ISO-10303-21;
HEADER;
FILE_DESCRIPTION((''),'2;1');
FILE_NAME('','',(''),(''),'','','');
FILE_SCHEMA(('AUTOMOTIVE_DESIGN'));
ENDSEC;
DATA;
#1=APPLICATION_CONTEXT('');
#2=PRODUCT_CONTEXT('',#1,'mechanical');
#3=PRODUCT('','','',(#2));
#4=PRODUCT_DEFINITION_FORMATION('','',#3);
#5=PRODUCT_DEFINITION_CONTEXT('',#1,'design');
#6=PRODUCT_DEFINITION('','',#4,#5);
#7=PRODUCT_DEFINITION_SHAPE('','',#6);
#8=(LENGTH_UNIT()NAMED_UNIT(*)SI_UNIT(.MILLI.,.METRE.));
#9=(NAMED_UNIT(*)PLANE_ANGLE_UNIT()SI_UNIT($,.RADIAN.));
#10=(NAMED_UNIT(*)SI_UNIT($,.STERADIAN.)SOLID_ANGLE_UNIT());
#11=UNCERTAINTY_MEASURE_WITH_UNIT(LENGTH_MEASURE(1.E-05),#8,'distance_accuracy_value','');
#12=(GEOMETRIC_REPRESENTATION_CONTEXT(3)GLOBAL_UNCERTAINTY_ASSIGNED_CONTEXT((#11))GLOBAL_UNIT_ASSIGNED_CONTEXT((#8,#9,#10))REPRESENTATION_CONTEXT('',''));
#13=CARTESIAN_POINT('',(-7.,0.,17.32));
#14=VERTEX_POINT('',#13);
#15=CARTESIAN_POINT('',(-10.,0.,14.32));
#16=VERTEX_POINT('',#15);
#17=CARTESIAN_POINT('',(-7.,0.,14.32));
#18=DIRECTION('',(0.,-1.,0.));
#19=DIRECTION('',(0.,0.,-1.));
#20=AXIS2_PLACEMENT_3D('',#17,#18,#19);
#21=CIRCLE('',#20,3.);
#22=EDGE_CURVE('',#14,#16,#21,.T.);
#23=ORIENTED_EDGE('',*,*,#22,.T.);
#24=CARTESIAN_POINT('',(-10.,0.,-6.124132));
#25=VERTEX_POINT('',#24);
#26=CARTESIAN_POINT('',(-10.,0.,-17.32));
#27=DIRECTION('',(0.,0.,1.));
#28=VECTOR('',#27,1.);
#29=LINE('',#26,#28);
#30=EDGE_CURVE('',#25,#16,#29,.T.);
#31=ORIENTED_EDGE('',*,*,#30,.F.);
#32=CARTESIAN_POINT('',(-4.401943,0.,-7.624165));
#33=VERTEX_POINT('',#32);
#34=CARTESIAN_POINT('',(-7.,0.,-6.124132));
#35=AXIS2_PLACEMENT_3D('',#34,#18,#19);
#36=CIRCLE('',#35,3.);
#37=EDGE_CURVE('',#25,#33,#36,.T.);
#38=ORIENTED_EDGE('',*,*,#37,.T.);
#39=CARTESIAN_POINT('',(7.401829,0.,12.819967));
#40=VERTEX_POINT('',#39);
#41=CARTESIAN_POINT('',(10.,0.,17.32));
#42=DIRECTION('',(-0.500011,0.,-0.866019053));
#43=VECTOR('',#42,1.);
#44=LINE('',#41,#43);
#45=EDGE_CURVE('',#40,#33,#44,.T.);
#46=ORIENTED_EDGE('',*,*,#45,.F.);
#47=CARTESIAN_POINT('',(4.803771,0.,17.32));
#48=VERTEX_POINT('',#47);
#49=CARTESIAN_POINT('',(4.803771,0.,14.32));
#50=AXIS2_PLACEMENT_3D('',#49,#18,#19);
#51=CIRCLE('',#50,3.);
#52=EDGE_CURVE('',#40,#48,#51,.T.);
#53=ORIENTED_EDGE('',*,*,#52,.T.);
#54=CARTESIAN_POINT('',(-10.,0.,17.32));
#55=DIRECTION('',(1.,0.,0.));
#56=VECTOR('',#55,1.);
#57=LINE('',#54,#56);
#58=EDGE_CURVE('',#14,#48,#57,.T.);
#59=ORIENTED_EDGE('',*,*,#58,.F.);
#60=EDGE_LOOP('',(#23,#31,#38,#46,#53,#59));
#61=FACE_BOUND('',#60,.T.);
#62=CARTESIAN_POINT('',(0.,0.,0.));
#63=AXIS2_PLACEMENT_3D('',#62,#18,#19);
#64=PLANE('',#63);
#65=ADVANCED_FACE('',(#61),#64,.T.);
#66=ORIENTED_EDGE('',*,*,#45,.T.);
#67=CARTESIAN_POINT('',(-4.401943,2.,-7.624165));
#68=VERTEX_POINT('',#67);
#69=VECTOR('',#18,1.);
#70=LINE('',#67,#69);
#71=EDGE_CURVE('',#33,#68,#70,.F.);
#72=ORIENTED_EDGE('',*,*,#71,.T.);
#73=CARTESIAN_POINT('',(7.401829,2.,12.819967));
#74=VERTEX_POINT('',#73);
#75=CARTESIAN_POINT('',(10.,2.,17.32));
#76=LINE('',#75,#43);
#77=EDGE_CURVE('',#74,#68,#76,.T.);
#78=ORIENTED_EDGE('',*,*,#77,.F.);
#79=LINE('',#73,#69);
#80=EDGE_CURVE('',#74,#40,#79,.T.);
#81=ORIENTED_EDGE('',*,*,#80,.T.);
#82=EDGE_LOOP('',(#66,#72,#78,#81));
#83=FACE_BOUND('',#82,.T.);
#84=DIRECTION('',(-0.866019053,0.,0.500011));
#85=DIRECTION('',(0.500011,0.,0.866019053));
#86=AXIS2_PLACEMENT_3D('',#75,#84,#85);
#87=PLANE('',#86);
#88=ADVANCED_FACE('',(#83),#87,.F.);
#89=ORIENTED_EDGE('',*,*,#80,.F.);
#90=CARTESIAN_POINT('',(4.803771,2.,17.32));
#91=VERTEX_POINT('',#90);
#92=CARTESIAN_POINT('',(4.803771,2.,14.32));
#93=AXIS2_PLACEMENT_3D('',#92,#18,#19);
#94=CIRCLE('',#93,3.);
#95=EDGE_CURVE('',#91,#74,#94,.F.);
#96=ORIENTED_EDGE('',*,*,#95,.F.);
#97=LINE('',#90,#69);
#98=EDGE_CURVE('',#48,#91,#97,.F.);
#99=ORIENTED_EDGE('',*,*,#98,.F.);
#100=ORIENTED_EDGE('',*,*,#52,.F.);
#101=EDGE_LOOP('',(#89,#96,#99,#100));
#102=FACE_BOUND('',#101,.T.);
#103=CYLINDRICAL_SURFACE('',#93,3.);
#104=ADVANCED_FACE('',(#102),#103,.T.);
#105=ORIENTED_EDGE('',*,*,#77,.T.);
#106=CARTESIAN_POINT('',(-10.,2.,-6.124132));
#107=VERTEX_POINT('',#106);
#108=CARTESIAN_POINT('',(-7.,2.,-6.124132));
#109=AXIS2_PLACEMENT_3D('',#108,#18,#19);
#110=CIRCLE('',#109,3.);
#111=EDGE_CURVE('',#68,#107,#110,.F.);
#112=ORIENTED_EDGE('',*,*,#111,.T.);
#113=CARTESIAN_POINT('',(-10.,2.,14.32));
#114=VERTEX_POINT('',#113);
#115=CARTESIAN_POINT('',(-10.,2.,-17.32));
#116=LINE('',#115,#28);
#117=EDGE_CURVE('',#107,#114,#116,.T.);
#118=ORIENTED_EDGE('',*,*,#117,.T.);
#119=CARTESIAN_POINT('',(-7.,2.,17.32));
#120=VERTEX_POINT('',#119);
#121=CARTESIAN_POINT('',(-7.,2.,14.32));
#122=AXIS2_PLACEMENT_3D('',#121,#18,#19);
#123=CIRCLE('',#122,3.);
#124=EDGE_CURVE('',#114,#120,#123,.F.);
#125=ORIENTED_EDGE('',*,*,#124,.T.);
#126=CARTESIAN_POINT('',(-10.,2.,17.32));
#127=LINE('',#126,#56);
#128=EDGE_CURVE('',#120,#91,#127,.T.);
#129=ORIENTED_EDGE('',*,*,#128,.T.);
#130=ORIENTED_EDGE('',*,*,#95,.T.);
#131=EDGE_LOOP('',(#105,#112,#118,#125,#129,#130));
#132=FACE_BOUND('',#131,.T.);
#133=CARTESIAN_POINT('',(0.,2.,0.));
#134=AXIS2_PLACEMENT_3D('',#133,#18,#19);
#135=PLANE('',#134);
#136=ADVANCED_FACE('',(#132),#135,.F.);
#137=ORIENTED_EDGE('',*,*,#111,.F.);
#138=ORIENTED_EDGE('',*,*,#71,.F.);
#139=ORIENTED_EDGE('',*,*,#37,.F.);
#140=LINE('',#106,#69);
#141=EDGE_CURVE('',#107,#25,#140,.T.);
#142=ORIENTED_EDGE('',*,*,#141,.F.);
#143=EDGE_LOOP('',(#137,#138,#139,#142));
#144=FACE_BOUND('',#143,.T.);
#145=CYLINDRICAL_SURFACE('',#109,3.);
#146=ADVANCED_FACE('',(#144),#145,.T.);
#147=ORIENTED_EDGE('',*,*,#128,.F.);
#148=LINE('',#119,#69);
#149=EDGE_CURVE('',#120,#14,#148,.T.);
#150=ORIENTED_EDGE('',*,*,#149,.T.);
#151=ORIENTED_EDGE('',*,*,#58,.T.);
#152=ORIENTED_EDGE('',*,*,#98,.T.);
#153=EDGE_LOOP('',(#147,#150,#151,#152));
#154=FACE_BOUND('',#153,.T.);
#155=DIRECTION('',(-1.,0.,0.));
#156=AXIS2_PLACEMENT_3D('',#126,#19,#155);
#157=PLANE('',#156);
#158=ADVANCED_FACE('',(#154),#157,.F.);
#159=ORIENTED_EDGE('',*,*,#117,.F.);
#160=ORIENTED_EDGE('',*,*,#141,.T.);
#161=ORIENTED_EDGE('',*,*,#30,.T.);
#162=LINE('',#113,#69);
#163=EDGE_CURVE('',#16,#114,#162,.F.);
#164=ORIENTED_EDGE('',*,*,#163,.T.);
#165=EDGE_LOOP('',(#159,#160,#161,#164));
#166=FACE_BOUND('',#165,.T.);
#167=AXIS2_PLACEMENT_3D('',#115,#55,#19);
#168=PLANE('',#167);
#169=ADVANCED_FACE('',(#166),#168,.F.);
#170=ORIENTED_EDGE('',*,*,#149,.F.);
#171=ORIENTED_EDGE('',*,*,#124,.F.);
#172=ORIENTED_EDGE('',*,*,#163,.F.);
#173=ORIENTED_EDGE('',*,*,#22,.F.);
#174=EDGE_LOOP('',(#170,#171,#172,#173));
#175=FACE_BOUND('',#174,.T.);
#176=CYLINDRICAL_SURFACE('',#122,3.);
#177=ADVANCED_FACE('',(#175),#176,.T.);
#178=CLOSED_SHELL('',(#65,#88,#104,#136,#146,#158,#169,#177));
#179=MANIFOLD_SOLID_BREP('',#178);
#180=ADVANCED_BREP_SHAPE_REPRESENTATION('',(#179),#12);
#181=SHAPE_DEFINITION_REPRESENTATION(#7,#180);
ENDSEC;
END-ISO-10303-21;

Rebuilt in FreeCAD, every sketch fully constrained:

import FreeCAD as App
import Part
import Sketcher
Q = App.Units.Quantity


def edges_at(feature, points):
    """Names of the edges that pass closest to the given points."""
    edges = feature.Shape.Edges
    near = lambda p: min(range(len(edges)), key=lambda i: edges[i].distToShape(Part.Vertex(*p))[0])
    return sorted({f"Edge{near(p) + 1}" for p in points})

doc = App.newDocument("Part")
body = doc.addObject("PartDesign::Body", "Body")

# Sketch on XZ plane
sketch1 = doc.addObject("Sketcher::SketchObject", "Sketch")
body.addObject(sketch1)
sketch1.AttachmentSupport = (doc.XZ_Plane, [""])
sketch1.MapMode = "FlatFace"
sketch1.addGeometry([
    Part.LineSegment(App.Vector(-10, -17, 0), App.Vector(-10, 17, 0)),
    Part.LineSegment(App.Vector(-10, 17, 0), App.Vector(10, 17, 0)),
    Part.LineSegment(App.Vector(10, 17, 0), App.Vector(-10, -17, 0)),
], False)
sketch1.addConstraint([
    Sketcher.Constraint("Coincident", 0, 2, 1, 1),
    Sketcher.Constraint("Coincident", 1, 2, 2, 1),
    Sketcher.Constraint("Coincident", 2, 2, 0, 1),
    Sketcher.Constraint("Vertical", 0),
    Sketcher.Constraint("Horizontal", 1),
    Sketcher.Constraint("Symmetric", 1, 2, 2, 2, -1, 1),
    Sketcher.Constraint("DistanceX", 1, 1, 1, 2, Q("20 mm")),
    Sketcher.Constraint("DistanceY", 0, 1, 0, 2, Q("34.64 mm")),
])
pad1 = doc.addObject("PartDesign::Pad", "Pad")
body.addObject(pad1)
pad1.Profile = sketch1
pad1.Length = 2
pad1.Reversed = True
doc.recompute()

fillet = doc.addObject("PartDesign::Fillet", "Fillet")
body.addObject(fillet)
fillet.Base = (pad1, edges_at(pad1, [(10, 1, 17.32), (-10, 1, 17.32), (-10, 1, -17.32)]))
fillet.Radius = 3

doc.recompute()
